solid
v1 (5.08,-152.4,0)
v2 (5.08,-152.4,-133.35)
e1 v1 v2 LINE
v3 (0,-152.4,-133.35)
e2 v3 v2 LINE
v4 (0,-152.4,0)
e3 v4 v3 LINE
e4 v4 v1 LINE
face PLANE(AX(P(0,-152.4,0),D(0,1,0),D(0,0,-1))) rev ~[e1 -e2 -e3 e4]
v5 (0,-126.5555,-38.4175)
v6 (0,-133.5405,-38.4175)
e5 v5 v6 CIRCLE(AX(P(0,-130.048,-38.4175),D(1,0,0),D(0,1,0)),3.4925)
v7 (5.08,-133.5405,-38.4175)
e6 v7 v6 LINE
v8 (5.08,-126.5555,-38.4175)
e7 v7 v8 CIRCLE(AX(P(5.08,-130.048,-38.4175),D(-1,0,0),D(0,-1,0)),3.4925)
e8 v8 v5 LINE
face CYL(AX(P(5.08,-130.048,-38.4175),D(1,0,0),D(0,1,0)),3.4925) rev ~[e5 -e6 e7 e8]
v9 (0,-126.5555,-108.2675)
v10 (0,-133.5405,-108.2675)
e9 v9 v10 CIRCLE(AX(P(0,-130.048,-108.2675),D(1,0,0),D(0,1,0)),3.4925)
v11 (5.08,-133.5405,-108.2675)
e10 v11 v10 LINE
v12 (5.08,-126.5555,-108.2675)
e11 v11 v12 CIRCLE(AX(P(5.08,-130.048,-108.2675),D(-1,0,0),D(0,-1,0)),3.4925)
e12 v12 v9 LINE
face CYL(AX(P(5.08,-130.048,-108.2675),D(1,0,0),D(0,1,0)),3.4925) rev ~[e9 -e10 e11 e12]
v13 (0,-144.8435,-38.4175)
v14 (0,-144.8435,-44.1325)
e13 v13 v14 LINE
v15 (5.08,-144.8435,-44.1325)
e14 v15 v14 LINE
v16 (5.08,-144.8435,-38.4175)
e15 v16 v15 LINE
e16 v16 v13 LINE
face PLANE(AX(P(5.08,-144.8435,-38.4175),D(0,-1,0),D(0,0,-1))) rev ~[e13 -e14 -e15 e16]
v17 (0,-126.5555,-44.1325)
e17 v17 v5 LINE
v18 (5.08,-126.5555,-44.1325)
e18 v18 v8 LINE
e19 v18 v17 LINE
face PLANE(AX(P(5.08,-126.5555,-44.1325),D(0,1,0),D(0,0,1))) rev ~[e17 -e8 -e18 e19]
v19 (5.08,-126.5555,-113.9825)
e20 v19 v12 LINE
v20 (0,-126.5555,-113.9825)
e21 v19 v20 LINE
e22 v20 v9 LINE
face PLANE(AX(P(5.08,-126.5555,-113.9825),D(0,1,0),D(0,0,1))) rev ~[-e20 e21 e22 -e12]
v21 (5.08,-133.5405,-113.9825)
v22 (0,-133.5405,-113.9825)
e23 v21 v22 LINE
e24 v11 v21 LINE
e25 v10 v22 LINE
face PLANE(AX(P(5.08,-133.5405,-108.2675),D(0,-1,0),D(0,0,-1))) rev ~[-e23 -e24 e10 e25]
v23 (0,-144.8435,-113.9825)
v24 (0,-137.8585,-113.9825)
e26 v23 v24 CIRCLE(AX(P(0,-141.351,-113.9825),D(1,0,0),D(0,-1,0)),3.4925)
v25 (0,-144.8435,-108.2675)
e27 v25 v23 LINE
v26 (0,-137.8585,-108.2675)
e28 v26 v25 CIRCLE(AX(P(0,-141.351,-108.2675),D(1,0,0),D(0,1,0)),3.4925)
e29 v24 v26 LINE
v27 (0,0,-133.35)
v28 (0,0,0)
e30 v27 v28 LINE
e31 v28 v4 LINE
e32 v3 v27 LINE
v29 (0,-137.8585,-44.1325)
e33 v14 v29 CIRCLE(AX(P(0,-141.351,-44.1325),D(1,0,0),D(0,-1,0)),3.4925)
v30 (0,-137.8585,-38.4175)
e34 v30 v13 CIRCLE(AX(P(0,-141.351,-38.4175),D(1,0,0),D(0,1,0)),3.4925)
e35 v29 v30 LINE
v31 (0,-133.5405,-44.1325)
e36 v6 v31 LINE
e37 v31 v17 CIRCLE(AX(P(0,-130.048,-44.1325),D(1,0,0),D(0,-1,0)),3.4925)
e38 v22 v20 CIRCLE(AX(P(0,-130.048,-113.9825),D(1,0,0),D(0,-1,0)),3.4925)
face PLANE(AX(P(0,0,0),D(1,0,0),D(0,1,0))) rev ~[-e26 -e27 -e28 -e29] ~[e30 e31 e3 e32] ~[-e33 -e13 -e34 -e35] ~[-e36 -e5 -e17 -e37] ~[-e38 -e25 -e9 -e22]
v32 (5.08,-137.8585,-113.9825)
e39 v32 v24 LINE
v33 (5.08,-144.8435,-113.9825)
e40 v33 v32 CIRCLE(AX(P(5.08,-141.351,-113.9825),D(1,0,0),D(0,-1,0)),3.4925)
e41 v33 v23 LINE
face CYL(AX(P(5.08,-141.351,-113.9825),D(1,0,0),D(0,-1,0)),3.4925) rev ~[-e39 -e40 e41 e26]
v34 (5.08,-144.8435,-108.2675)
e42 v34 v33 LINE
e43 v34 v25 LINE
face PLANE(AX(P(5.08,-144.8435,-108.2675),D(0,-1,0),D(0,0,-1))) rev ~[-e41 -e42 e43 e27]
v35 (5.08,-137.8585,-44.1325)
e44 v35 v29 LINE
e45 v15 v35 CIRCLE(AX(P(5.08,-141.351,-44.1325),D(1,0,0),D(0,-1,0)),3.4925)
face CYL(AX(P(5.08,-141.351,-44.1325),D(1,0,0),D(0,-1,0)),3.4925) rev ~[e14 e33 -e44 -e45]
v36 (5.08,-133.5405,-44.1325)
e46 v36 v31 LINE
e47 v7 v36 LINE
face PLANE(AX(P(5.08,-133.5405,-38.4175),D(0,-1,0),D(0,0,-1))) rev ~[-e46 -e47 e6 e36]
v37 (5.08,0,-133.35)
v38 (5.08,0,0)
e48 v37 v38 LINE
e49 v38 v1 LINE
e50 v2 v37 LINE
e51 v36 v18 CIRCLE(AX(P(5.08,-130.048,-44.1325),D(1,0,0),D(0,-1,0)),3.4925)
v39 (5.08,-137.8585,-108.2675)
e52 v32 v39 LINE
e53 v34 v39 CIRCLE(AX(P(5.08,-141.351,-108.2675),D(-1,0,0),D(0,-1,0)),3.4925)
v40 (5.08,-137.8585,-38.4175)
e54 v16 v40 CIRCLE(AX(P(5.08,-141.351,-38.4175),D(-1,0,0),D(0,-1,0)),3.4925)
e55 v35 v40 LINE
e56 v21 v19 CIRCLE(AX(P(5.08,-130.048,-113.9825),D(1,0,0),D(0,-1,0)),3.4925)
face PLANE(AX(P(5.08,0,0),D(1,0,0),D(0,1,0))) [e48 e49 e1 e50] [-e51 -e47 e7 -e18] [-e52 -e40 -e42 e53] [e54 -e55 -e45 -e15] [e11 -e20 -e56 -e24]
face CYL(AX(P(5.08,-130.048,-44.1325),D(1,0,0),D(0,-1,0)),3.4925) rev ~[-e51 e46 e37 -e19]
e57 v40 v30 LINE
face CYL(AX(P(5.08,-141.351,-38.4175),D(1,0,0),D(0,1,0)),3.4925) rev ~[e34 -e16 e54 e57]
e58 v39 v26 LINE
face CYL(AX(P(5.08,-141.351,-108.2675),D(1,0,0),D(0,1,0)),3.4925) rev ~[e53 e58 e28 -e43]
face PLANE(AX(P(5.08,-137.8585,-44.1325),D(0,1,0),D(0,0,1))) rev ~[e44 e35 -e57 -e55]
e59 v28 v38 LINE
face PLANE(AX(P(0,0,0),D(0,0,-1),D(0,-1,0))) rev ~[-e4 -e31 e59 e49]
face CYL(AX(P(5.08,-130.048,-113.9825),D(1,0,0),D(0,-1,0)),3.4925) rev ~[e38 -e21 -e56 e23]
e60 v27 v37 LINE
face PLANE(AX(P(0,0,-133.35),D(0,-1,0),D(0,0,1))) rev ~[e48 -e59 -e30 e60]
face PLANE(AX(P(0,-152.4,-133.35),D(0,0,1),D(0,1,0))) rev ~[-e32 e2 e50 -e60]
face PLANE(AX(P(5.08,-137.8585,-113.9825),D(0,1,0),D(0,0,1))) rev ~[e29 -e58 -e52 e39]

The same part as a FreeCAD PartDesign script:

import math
import FreeCAD as App
import Part
import Sketcher
from FreeCAD import Vector
Q = App.Units.Quantity

doc = App.newDocument("Part")
params = doc.addObject("Spreadsheet::Sheet", "Params")
for row, (alias, value) in enumerate([
    ("sketch1_width", "6 in"),
    ("sketch1_height", "5.25 in"),
    ("pad1_length", "0.2 in"),
    ("sketch2_height", "0.225 in"),
    ("pocket1_length", "1 in"),
], start=1):
    params.set(f"A{row}", alias)
    params.set(f"B{row}", "=" + value)
    params.setAlias(f"B{row}", alias)

body = doc.addObject("PartDesign::Body", "Body")

# Sketch on YZ plane
sketch1 = body.newObject("Sketcher::SketchObject", "Sketch")
sketch1.AttachmentSupport = (doc.getObject("YZ_Plane"), [""])
sketch1.MapMode = "FlatFace"
sketch1.addGeometry([
    Part.LineSegment(Vector(0, -133.35, 0), Vector(0, 0, 0)),
    Part.LineSegment(Vector(0, 0, 0), Vector(-152.4, 0, 0)),
    Part.LineSegment(Vector(-152.4, 0, 0), Vector(-152.4, -133.35, 0)),
    Part.LineSegment(Vector(-152.4, -133.35, 0), Vector(0, -133.35, 0)),
], False)
sketch1.addConstraint([
    Sketcher.Constraint("Coincident", 0, 2, 1, 1),
    Sketcher.Constraint("Coincident", 1, 2, 2, 1),
    Sketcher.Constraint("Coincident", 2, 2, 3, 1),
    Sketcher.Constraint("Coincident", 3, 2, 0, 1),
    Sketcher.Constraint("Vertical", 0),
    Sketcher.Constraint("Horizontal", 1),
    Sketcher.Constraint("Vertical", 2),
    Sketcher.Constraint("Horizontal", 3),
    Sketcher.Constraint("Coincident", 0, 2, -1, 1),
    Sketcher.Constraint("DistanceX", 1, 2, 1, 1, Q("6 in")),
    Sketcher.Constraint("DistanceY", 0, 1, 0, 2, Q("5.25 in")),
])
sketch1.setExpression("Constraints[9]", "Params.sketch1_width")
sketch1.setExpression("Constraints[10]", "Params.sketch1_height")
pad1 = body.newObject("PartDesign::Pad", "Pad")
pad1.Profile = sketch1
pad1.setExpression("Length", "Params.pad1_length")

# Sketch on YZ plane
sketch2 = body.newObject("Sketcher::SketchObject", "Sketch001")
sketch2.AttachmentSupport = (doc.getObject("YZ_Plane"), [""])
sketch2.MapMode = "FlatFace"
sketch2.AttachmentOffset = App.Placement(Vector(0, 0, 0.2 * 25.4), App.Rotation())
sketch2.addGeometry([
    Part.ArcOfCircle(Part.Circle(Vector(-130.048, -38.4175, 0), Vector(0, 0, 1), 3.4925), math.radians(0), math.radians(180)),  # 0
    Part.LineSegment(Vector(-133.5405, -38.4175, 0), Vector(-133.5405, -44.1325, 0)),  # 1
    Part.ArcOfCircle(Part.Circle(Vector(-130.048, -44.1325, 0), Vector(0, 0, 1), 3.4925), math.radians(180), math.radians(360)),  # 2
    Part.LineSegment(Vector(-126.5555, -44.1325, 0), Vector(-126.5555, -38.4175, 0)),  # 3
    Part.ArcOfCircle(Part.Circle(Vector(-130.048, -108.2675, 0), Vector(0, 0, 1), 3.4925), math.radians(0), math.radians(180)),  # 4
    Part.LineSegment(Vector(-133.5405, -108.2675, 0), Vector(-133.5405, -113.9825, 0)),  # 5
    Part.ArcOfCircle(Part.Circle(Vector(-130.048, -113.9825, 0), Vector(0, 0, 1), 3.4925), math.radians(180), math.radians(360)),  # 6
    Part.LineSegment(Vector(-126.5555, -113.9825, 0), Vector(-126.5555, -108.2675, 0)),  # 7
    Part.ArcOfCircle(Part.Circle(Vector(-141.351, -38.4175, 0), Vector(0, 0, 1), 3.4925), math.radians(0), math.radians(180)),  # 8
    Part.LineSegment(Vector(-144.8435, -38.4175, 0), Vector(-144.8435, -44.1325, 0)),  # 9
    Part.ArcOfCircle(Part.Circle(Vector(-141.351, -44.1325, 0), Vector(0, 0, 1), 3.4925), math.radians(180), math.radians(360)),  # 10
    Part.LineSegment(Vector(-137.8585, -44.1325, 0), Vector(-137.8585, -38.4175, 0)),  # 11
    Part.ArcOfCircle(Part.Circle(Vector(-141.351, -108.2675, 0), Vector(0, 0, 1), 3.4925), math.radians(0), math.radians(180)),  # 12
    Part.LineSegment(Vector(-144.8435, -108.2675, 0), Vector(-144.8435, -113.9825, 0)),  # 13
    Part.ArcOfCircle(Part.Circle(Vector(-141.351, -113.9825, 0), Vector(0, 0, 1), 3.4925), math.radians(180), math.radians(360)),  # 14
    Part.LineSegment(Vector(-137.8585, -113.9825, 0), Vector(-137.8585, -108.2675, 0)),  # 15
], False)
sketch2.addConstraint([
    Sketcher.Constraint("Tangent", 0, 2, 1, 1),
    Sketcher.Constraint("Tangent", 1, 2, 2, 1),
    Sketcher.Constraint("Tangent", 2, 2, 3, 1),
    Sketcher.Constraint("Tangent", 3, 2, 0, 1),
    Sketcher.Constraint("Tangent", 4, 2, 5, 1),
    Sketcher.Constraint("Tangent", 5, 2, 6, 1),
    Sketcher.Constraint("Tangent", 6, 2, 7, 1),
    Sketcher.Constraint("Tangent", 7, 2, 4, 1),
    Sketcher.Constraint("Tangent", 8, 2, 9, 1),
    Sketcher.Constraint("Tangent", 9, 2, 10, 1),
    Sketcher.Constraint("Tangent", 10, 2, 11, 1),
    Sketcher.Constraint("Tangent", 11, 2, 8, 1),
    Sketcher.Constraint("Tangent", 12, 2, 13, 1),
    Sketcher.Constraint("Tangent", 13, 2, 14, 1),
    Sketcher.Constraint("Tangent", 14, 2, 15, 1),
    Sketcher.Constraint("Tangent", 15, 2, 12, 1),
    Sketcher.Constraint("Vertical", 1),
    Sketcher.Constraint("Vertical", 3),
    Sketcher.Constraint("Vertical", 5),
    Sketcher.Constraint("Vertical", 7),
    Sketcher.Constraint("Vertical", 9),
    Sketcher.Constraint("Vertical", 11),
    Sketcher.Constraint("Vertical", 13),
    Sketcher.Constraint("Vertical", 15),
    Sketcher.Constraint("Equal", 2, 4),
    Sketcher.Constraint("Equal", 6, 8),
    Sketcher.Constraint("Equal", 10, 12),
    Sketcher.Constraint("Horizontal", 0, 3, 8, 3),
    Sketcher.Constraint("Horizontal", 2, 3, 10, 3),
    Sketcher.Constraint("Horizontal", 4, 3, 12, 3),
    Sketcher.Constraint("Horizontal", 6, 3, 14, 3),
    Sketcher.Constraint("Vertical", 2, 3, 4, 3),
    Sketcher.Constraint("Vertical", 10, 3, 12, 3),
    Sketcher.Constraint("Equal", 3, 5),
    Sketcher.Constraint("Radius", 0, Q("0.1375 in")),
    Sketcher.Constraint("DistanceY", 1, 2, 1, 1, Q("0.225 in")),
    Sketcher.Constraint("DistanceX", 0, 3, -1, 1, Q("5.12 in")),
    Sketcher.Constraint("DistanceY", 4, 3, 0, 3, Q("2.75 in")),
    Sketcher.Constraint("DistanceX", 10, 2, 1, 2, Q("0.17 in")),
    Sketcher.Constraint("DistanceY", 0, 3, -1, 1, Q("1.5125 in")),
])
sketch2.setExpression("Constraints[35]", "Params.sketch2_height")
pocket1 = body.newObject("PartDesign::Pocket", "Pocket")
pocket1.Profile = sketch2
pocket1.setExpression("Length", "Params.pocket1_length")

doc.recompute()
